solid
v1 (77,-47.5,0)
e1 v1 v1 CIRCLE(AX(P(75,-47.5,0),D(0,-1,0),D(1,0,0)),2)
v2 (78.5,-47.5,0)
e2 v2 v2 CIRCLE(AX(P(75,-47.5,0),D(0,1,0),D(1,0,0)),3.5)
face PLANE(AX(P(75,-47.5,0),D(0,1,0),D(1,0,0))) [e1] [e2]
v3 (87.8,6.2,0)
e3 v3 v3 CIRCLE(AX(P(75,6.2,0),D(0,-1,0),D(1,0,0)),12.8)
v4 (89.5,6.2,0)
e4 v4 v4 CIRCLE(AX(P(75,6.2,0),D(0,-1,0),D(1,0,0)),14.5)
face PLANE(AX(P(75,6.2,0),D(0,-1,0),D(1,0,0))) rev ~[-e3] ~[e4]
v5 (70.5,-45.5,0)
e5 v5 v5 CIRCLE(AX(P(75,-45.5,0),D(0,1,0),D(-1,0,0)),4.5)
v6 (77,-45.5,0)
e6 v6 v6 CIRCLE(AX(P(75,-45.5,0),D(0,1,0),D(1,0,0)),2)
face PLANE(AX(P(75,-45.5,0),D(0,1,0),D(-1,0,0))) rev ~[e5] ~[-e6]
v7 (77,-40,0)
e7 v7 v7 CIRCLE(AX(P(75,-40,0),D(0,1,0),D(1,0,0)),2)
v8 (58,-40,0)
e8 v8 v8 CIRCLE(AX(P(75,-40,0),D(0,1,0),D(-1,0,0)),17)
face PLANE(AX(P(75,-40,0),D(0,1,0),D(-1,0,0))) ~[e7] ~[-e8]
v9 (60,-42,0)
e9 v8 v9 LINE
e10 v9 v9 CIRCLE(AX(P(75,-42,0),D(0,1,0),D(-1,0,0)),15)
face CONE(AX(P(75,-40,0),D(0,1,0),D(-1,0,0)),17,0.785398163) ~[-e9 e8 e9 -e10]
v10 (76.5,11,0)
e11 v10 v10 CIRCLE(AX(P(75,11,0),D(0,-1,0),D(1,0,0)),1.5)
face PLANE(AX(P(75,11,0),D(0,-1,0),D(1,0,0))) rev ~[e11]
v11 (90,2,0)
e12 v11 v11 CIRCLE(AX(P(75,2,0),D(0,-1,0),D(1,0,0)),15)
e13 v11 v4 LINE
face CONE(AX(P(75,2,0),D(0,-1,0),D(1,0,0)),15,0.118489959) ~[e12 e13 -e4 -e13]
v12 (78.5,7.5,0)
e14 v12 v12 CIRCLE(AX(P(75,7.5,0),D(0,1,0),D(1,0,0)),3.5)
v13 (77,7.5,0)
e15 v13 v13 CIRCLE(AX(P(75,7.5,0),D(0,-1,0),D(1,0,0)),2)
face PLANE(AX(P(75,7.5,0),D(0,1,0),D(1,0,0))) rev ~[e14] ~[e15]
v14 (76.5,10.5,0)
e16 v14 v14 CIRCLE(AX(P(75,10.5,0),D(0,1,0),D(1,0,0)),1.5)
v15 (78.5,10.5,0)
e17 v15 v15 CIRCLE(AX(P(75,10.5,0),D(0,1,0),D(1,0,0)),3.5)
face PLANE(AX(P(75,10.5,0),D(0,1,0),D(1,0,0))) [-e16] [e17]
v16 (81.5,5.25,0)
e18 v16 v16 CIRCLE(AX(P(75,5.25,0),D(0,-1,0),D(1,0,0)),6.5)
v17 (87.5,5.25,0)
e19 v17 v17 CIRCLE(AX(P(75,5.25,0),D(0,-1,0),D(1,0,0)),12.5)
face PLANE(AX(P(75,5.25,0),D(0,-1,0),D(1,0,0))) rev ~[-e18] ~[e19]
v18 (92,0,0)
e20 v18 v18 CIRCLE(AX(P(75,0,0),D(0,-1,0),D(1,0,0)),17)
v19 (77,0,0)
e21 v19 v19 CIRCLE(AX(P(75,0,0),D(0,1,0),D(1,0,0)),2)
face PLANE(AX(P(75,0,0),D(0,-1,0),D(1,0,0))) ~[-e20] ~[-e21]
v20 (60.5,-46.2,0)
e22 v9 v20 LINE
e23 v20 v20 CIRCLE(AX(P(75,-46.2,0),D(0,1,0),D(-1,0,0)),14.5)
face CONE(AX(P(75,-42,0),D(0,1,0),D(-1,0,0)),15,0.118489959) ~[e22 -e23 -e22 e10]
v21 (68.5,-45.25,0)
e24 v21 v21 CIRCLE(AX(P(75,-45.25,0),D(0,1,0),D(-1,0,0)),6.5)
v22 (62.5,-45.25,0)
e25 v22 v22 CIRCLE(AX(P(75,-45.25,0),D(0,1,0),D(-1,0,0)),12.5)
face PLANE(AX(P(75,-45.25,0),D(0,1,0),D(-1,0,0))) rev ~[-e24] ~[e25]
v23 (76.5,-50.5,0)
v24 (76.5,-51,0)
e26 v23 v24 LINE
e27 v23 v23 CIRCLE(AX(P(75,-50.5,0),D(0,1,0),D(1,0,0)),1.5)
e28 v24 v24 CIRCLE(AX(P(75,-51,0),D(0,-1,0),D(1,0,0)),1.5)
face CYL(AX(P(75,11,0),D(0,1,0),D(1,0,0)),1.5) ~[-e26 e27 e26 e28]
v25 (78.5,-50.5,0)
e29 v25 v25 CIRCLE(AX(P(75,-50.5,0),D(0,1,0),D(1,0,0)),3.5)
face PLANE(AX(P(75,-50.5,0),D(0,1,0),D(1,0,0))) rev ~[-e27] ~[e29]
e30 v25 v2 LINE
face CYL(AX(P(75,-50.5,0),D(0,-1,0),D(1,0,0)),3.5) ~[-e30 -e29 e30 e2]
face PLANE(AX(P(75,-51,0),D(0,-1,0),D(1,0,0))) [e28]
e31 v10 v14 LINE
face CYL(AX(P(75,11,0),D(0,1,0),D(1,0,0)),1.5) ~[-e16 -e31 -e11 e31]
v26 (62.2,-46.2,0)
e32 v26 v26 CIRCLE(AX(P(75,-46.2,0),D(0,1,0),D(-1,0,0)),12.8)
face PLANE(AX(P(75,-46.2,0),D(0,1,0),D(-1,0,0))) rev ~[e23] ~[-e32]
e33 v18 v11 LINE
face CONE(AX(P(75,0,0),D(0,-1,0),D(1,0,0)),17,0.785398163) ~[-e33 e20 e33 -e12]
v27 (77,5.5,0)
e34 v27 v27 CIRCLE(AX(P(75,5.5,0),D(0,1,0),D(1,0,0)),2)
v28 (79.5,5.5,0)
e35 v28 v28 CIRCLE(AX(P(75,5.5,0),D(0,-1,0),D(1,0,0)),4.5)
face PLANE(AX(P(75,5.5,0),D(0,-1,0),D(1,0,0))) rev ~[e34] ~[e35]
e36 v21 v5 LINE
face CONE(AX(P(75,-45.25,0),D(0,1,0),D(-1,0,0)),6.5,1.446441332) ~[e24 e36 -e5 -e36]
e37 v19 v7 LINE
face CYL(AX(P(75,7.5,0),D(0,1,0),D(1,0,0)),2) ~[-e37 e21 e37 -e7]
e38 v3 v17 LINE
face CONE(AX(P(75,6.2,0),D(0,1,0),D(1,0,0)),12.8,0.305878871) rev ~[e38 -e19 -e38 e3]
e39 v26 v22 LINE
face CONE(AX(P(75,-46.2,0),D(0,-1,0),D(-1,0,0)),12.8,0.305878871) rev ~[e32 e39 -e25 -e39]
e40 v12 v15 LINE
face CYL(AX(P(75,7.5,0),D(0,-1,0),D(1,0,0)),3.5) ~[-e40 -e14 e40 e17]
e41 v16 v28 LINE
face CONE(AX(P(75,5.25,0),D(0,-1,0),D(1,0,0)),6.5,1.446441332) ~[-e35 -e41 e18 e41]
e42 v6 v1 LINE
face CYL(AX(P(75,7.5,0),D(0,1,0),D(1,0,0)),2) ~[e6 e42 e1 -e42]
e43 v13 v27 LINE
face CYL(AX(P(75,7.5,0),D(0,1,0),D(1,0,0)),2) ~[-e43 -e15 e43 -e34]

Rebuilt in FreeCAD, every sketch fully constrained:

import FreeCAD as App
import Part
import Sketcher

V = App.Vector
Q = App.Units.Quantity


def add_polygon(sketch, points):
    """Adds a closed chain of lines whose ends are joined by coincident constraints."""
    first, n = sketch.GeometryCount, len(points)
    for a, b in zip(points, points[1:] + points[:1]):
        sketch.addGeometry(Part.LineSegment(App.Vector(*a, 0), App.Vector(*b, 0)), False)
    for i in range(n):
        sketch.addConstraint(Sketcher.Constraint("Coincident", first + i, 2, first + (i + 1) % n, 1))

doc = App.newDocument("Part")
params = doc.addObject("Spreadsheet::Sheet", "Params")
for row, (alias, value) in enumerate([
    ("sketch1_diameter", "4 mm"),
    ("pad1_length", "10 mm"),
    ("sketch2_width", "17 mm"),
    ("sketch2_width2", "6 mm"),
    ("sketch2_width3", "1.7 mm"),
    ("sketch2_width4", "4.5 mm"),
    ("sketch2_height", "5.5 mm"),
    ("revolution_angle", "360 deg"),
    ("sketch3_diameter", "4 mm"),
    ("pad2_length", "55 mm"),
    ("sketch4_diameter", "3 mm"),
    ("pad3_length", "62 mm"),
    ("sketch5_diameter", "7 mm"),
    ("sketch5_diameter2", "3 mm"),
    ("pad4_length", "3 mm"),
    ("sketch6_diameter", "7 mm"),
    ("sketch6_diameter2", "3 mm"),
    ("pad5_length", "3 mm"),
    ("sketch7_diameter", "4 mm"),
    ("pad6_length", "10 mm"),
    ("sketch8_width", "17 mm"),
    ("sketch8_width2", "6 mm"),
    ("sketch8_width3", "1.7 mm"),
    ("sketch8_width4", "4.5 mm"),
    ("sketch8_height", "5.5 mm"),
    ("revolution2_angle", "360 deg"),
], start=1):
    params.set(f"A{row}", alias)
    params.set(f"B{row}", "=" + value)
    params.setAlias(f"B{row}", alias)

body = doc.addObject("PartDesign::Body", "Body")

# Sketch on XZ plane
sketch1 = doc.addObject("Sketcher::SketchObject", "Sketch")
body.addObject(sketch1)
sketch1.AttachmentSupport = (doc.XZ_Plane, [""])
sketch1.MapMode = "FlatFace"
sketch1.AttachmentOffset = App.Placement(V(0, 0, -8), App.Rotation())
sketch1.addGeometry(Part.Circle(V(0, 0, 0), V(0, 0, 1), 2), False)
sketch1.addConstraint(Sketcher.Constraint("Coincident", 0, 3, -1, 1))
sketch1.addConstraint(Sketcher.Constraint("Diameter", 0, Q("4 mm")))
sketch1.setExpression("Constraints[1]", "Params.sketch1_diameter")
pad1 = doc.addObject("PartDesign::Pad", "Pad")
body.addObject(pad1)
pad1.Profile = sketch1
pad1.setExpression("Length", "Params.pad1_length")
body2 = doc.addObject("PartDesign::Body", "Body001")

# Sketch on XY plane
sketch2 = doc.addObject("Sketcher::SketchObject", "Sketch001")
body2.addObject(sketch2)
sketch2.AttachmentSupport = (doc.getObject("XY_Plane001"), [""])
sketch2.MapMode = "FlatFace"
add_polygon(sketch2, [(0, 0), (17, 0), (15, 2), (14.5, 6.2), (12.8, 6.2), (12.5, 5.2), (6.5, 5.2), (4.5, 5.5), (0, 5.5)])  # lines 0-8
sketch2.addConstraint(Sketcher.Constraint("Horizontal", 0))
sketch2.addConstraint(Sketcher.Constraint("Horizontal", 3))
sketch2.addConstraint(Sketcher.Constraint("Horizontal", 5))
sketch2.addConstraint(Sketcher.Constraint("Horizontal", 7))
sketch2.addConstraint(Sketcher.Constraint("Vertical", 8))
sketch2.addConstraint(Sketcher.Constraint("Coincident", 8, 2, -1, 1))
sketch2.addConstraint(Sketcher.Constraint("DistanceX", 0, 1, 0, 2, Q("17 mm")))
sketch2.addConstraint(Sketcher.Constraint("DistanceX", 5, 2, 5, 1, Q("6 mm")))
sketch2.addConstraint(Sketcher.Constraint("Angle", 1, Q("135 deg")))
sketch2.addConstraint(Sketcher.Constraint("DistanceX", 3, 2, 3, 1, Q("1.7 mm")))
sketch2.addConstraint(Sketcher.Constraint("DistanceX", 7, 2, 7, 1, Q("4.5 mm")))
sketch2.addConstraint(Sketcher.Constraint("DistanceY", 8, 2, 8, 1, Q("5.5 mm")))
sketch2.addConstraint(Sketcher.Constraint("DistanceX", -1, 1, 1, 2, Q("15 mm")))
sketch2.addConstraint(Sketcher.Constraint("DistanceX", 4, 2, 2, 2, Q("2 mm")))
sketch2.addConstraint(Sketcher.Constraint("DistanceX", 6, 2, 5, 2, Q("2 mm")))
sketch2.addConstraint(Sketcher.Constraint("DistanceY", -1, 1, 2, 2, Q("6.2 mm")))
sketch2.addConstraint(Sketcher.Constraint("DistanceY", -1, 1, 4, 2, Q("5.25 mm")))
sketch2.setExpression("Constraints[15]", "Params.sketch2_width")
sketch2.setExpression("Constraints[16]", "Params.sketch2_width2")
sketch2.setExpression("Constraints[18]", "Params.sketch2_width3")
sketch2.setExpression("Constraints[19]", "Params.sketch2_width4")
sketch2.setExpression("Constraints[20]", "Params.sketch2_height")
revolution = doc.addObject("PartDesign::Revolution", "Revolution")
body2.addObject(revolution)
revolution.Profile = sketch2
revolution.ReferenceAxis = (sketch2, ["V_Axis"])
revolution.setExpression("Angle", "Params.revolution_angle")
doc.recompute()

boolean = doc.addObject("PartDesign::Boolean", "Boolean")
body2.addObject(boolean)
boolean.Type = "Cut"
boolean.addObjects([body])
body3 = doc.addObject("PartDesign::Body", "Body002")
doc.recompute()

body2.Placement = App.Placement(V(75, -40, 0), App.Rotation(V(0, 0, 1), 180))
boolean2 = doc.addObject("PartDesign::Boolean", "Boolean001")
body3.addObject(boolean2)
boolean2.Type = "Fuse"
boolean2.addObjects([body2])
body4 = doc.addObject("PartDesign::Body", "Body003")

# Sketch on XZ plane
sketch3 = doc.addObject("Sketcher::SketchObject", "Sketch002")
body4.addObject(sketch3)
sketch3.AttachmentSupport = (doc.getObject("XZ_Plane003"), [""])
sketch3.MapMode = "FlatFace"
sketch3.AttachmentOffset = App.Placement(V(0, 0, -7.5), App.Rotation())
sketch3.addGeometry(Part.Circle(V(0, 0, 0), V(0, 0, 1), 2), False)
sketch3.addConstraint(Sketcher.Constraint("Coincident", 0, 3, -1, 1))
sketch3.addConstraint(Sketcher.Constraint("Diameter", 0, Q("4 mm")))
sketch3.setExpression("Constraints[1]", "Params.sketch3_diameter")
pad2 = doc.addObject("PartDesign::Pad", "Pad001")
body4.addObject(pad2)
pad2.Profile = sketch3
pad2.setExpression("Length", "Params.pad2_length")
body5 = doc.addObject("PartDesign::Body", "Body004")

# Sketch on XZ plane
sketch4 = doc.addObject("Sketcher::SketchObject", "Sketch003")
body5.addObject(sketch4)
sketch4.AttachmentSupport = (doc.getObject("XZ_Plane004"), [""])
sketch4.MapMode = "FlatFace"
sketch4.AttachmentOffset = App.Placement(V(0, 0, -11), App.Rotation())
sketch4.addGeometry(Part.Circle(V(0, 0, 0), V(0, 0, 1), 1.5), False)
sketch4.addConstraint(Sketcher.Constraint("Coincident", 0, 3, -1, 1))
sketch4.addConstraint(Sketcher.Constraint("Diameter", 0, Q("3 mm")))
sketch4.setExpression("Constraints[1]", "Params.sketch4_diameter")
pad3 = doc.addObject("PartDesign::Pad", "Pad002")
body5.addObject(pad3)
pad3.Profile = sketch4
pad3.setExpression("Length", "Params.pad3_length")
doc.recompute()

boolean3 = doc.addObject("PartDesign::Boolean", "Boolean002")
body5.addObject(boolean3)
boolean3.Type = "Fuse"
boolean3.addObjects([body4])
body6 = doc.addObject("PartDesign::Body", "Body005")
doc.recompute()

body5.Placement = App.Placement(V(75, 0, 0), App.Rotation(V(0, 0, 1), 0))
boolean4 = doc.addObject("PartDesign::Boolean", "Boolean003")
body6.addObject(boolean4)
boolean4.Type = "Fuse"
boolean4.addObjects([body5])
body7 = doc.addObject("PartDesign::Body", "Body006")

# Sketch on XZ plane
sketch5 = doc.addObject("Sketcher::SketchObject", "Sketch004")
body7.addObject(sketch5)
sketch5.AttachmentSupport = (doc.getObject("XZ_Plane006"), [""])
sketch5.MapMode = "FlatFace"
sketch5.AttachmentOffset = App.Placement(V(0, 0, 50.5), App.Rotation())
sketch5.addGeometry(Part.Circle(V(75, 0, 0), V(0, 0, 1), 3.5), False)
sketch5.addGeometry(Part.Circle(V(75, 0, 0), V(0, 0, 1), 1.5), False)
sketch5.addConstraint(Sketcher.Constraint("Coincident", 1, 3, 0, 3))
sketch5.addConstraint(Sketcher.Constraint("PointOnObject", 0, 3, -1))
sketch5.addConstraint(Sketcher.Constraint("Diameter", 0, Q("7 mm")))
sketch5.addConstraint(Sketcher.Constraint("Diameter", 1, Q("3 mm")))
sketch5.addConstraint(Sketcher.Constraint("DistanceX", -1, 1, 0, 3, Q("75 mm")))
sketch5.setExpression("Constraints[2]", "Params.sketch5_diameter")
sketch5.setExpression("Constraints[3]", "Params.sketch5_diameter2")
pad4 = doc.addObject("PartDesign::Pad", "Pad003")
body7.addObject(pad4)
pad4.Profile = sketch5
pad4.setExpression("Length", "Params.pad4_length")
pad4.Reversed = True
body8 = doc.addObject("PartDesign::Body", "Body007")

# Sketch on XZ plane
sketch6 = doc.addObject("Sketcher::SketchObject", "Sketch005")
body8.addObject(sketch6)
sketch6.AttachmentSupport = (doc.getObject("XZ_Plane007"), [""])
sketch6.MapMode = "FlatFace"
sketch6.AttachmentOffset = App.Placement(V(0, 0, -7.5), App.Rotation())
sketch6.addGeometry(Part.Circle(V(75, 0, 0), V(0, 0, 1), 3.5), False)
sketch6.addGeometry(Part.Circle(V(75, 0, 0), V(0, 0, 1), 1.5), False)
sketch6.addConstraint(Sketcher.Constraint("Coincident", 1, 3, 0, 3))
sketch6.addConstraint(Sketcher.Constraint("PointOnObject", 0, 3, -1))
sketch6.addConstraint(Sketcher.Constraint("Diameter", 0, Q("7 mm")))
sketch6.addConstraint(Sketcher.Constraint("Diameter", 1, Q("3 mm")))
sketch6.addConstraint(Sketcher.Constraint("DistanceX", -1, 1, 0, 3, Q("75 mm")))
sketch6.setExpression("Constraints[2]", "Params.sketch6_diameter")
sketch6.setExpression("Constraints[3]", "Params.sketch6_diameter2")
pad5 = doc.addObject("PartDesign::Pad", "Pad004")
body8.addObject(pad5)
pad5.Profile = sketch6
pad5.setExpression("Length", "Params.pad5_length")
pad5.Reversed = True
body9 = doc.addObject("PartDesign::Body", "Body008")

# Sketch on XZ plane
sketch7 = doc.addObject("Sketcher::SketchObject", "Sketch006")
body9.addObject(sketch7)
sketch7.AttachmentSupport = (doc.getObject("XZ_Plane008"), [""])
sketch7.MapMode = "FlatFace"
sketch7.AttachmentOffset = App.Placement(V(0, 0, -8), App.Rotation())
sketch7.addGeometry(Part.Circle(V(0, 0, 0), V(0, 0, 1), 2), False)
sketch7.addConstraint(Sketcher.Constraint("Coincident", 0, 3, -1, 1))
sketch7.addConstraint(Sketcher.Constraint("Diameter", 0, Q("4 mm")))
sketch7.setExpression("Constraints[1]", "Params.sketch7_diameter")
pad6 = doc.addObject("PartDesign::Pad", "Pad005")
body9.addObject(pad6)
pad6.Profile = sketch7
pad6.setExpression("Length", "Params.pad6_length")
body10 = doc.addObject("PartDesign::Body", "Body009")

# Sketch on XY plane
sketch8 = doc.addObject("Sketcher::SketchObject", "Sketch007")
body10.addObject(sketch8)
sketch8.AttachmentSupport = (doc.getObject("XY_Plane009"), [""])
sketch8.MapMode = "FlatFace"
add_polygon(sketch8, [(0, 0), (17, 0), (15, 2), (14.5, 6.2), (12.8, 6.2), (12.5, 5.2), (6.5, 5.2), (4.5, 5.5), (0, 5.5)])  # lines 0-8
sketch8.addConstraint(Sketcher.Constraint("Horizontal", 0))
sketch8.addConstraint(Sketcher.Constraint("Horizontal", 3))
sketch8.addConstraint(Sketcher.Constraint("Horizontal", 5))
sketch8.addConstraint(Sketcher.Constraint("Horizontal", 7))
sketch8.addConstraint(Sketcher.Constraint("Vertical", 8))
sketch8.addConstraint(Sketcher.Constraint("Coincident", 8, 2, -1, 1))
sketch8.addConstraint(Sketcher.Constraint("DistanceX", 0, 1, 0, 2, Q("17 mm")))
sketch8.addConstraint(Sketcher.Constraint("DistanceX", 5, 2, 5, 1, Q("6 mm")))
sketch8.addConstraint(Sketcher.Constraint("Angle", 1, Q("135 deg")))
sketch8.addConstraint(Sketcher.Constraint("DistanceX", 3, 2, 3, 1, Q("1.7 mm")))
sketch8.addConstraint(Sketcher.Constraint("DistanceX", 7, 2, 7, 1, Q("4.5 mm")))
sketch8.addConstraint(Sketcher.Constraint("DistanceY", 8, 2, 8, 1, Q("5.5 mm")))
sketch8.addConstraint(Sketcher.Constraint("DistanceX", -1, 1, 1, 2, Q("15 mm")))
sketch8.addConstraint(Sketcher.Constraint("DistanceX", 4, 2, 2, 2, Q("2 mm")))
sketch8.addConstraint(Sketcher.Constraint("DistanceX", 6, 2, 5, 2, Q("2 mm")))
sketch8.addConstraint(Sketcher.Constraint("DistanceY", -1, 1, 2, 2, Q("6.2 mm")))
sketch8.addConstraint(Sketcher.Constraint("DistanceY", -1, 1, 4, 2, Q("5.25 mm")))
sketch8.setExpression("Constraints[15]", "Params.sketch8_width")
sketch8.setExpression("Constraints[16]", "Params.sketch8_width2")
sketch8.setExpression("Constraints[18]", "Params.sketch8_width3")
sketch8.setExpression("Constraints[19]", "Params.sketch8_width4")
sketch8.setExpression("Constraints[20]", "Params.sketch8_height")
revolution2 = doc.addObject("PartDesign::Revolution", "Revolution001")
body10.addObject(revolution2)
revolution2.Profile = sketch8
revolution2.ReferenceAxis = (sketch8, ["V_Axis"])
revolution2.setExpression("Angle", "Params.revolution2_angle")
doc.recompute()

boolean5 = doc.addObject("PartDesign::Boolean", "Boolean004")
body10.addObject(boolean5)
boolean5.Type = "Cut"
boolean5.addObjects([body9])
body11 = doc.addObject("PartDesign::Body", "Body010")
body11.AllowCompound = True
doc.recompute()

body10.Placement = App.Placement(V(75, 0, 0), App.Rotation(V(0, 0, 1), 0))
boolean6 = doc.addObject("PartDesign::Boolean", "Boolean005")
body11.addObject(boolean6)
boolean6.Type = "Fuse"
boolean6.addObjects([body10])
doc.recompute()

boolean7 = doc.addObject("PartDesign::Boolean", "Boolean006")
body11.addObject(boolean7)
boolean7.Type = "Fuse"
boolean7.addObjects([body3])
doc.recompute()

boolean8 = doc.addObject("PartDesign::Boolean", "Boolean007")
body11.addObject(boolean8)
boolean8.Type = "Fuse"
boolean8.addObjects([body6])
doc.recompute()

boolean9 = doc.addObject("PartDesign::Boolean", "Boolean008")
body11.addObject(boolean9)
boolean9.Type = "Fuse"
boolean9.addObjects([body7])
doc.recompute()

boolean10 = doc.addObject("PartDesign::Boolean", "Boolean009")
body11.addObject(boolean10)
boolean10.Type = "Fuse"
boolean10.addObjects([body8])

doc.recompute()
